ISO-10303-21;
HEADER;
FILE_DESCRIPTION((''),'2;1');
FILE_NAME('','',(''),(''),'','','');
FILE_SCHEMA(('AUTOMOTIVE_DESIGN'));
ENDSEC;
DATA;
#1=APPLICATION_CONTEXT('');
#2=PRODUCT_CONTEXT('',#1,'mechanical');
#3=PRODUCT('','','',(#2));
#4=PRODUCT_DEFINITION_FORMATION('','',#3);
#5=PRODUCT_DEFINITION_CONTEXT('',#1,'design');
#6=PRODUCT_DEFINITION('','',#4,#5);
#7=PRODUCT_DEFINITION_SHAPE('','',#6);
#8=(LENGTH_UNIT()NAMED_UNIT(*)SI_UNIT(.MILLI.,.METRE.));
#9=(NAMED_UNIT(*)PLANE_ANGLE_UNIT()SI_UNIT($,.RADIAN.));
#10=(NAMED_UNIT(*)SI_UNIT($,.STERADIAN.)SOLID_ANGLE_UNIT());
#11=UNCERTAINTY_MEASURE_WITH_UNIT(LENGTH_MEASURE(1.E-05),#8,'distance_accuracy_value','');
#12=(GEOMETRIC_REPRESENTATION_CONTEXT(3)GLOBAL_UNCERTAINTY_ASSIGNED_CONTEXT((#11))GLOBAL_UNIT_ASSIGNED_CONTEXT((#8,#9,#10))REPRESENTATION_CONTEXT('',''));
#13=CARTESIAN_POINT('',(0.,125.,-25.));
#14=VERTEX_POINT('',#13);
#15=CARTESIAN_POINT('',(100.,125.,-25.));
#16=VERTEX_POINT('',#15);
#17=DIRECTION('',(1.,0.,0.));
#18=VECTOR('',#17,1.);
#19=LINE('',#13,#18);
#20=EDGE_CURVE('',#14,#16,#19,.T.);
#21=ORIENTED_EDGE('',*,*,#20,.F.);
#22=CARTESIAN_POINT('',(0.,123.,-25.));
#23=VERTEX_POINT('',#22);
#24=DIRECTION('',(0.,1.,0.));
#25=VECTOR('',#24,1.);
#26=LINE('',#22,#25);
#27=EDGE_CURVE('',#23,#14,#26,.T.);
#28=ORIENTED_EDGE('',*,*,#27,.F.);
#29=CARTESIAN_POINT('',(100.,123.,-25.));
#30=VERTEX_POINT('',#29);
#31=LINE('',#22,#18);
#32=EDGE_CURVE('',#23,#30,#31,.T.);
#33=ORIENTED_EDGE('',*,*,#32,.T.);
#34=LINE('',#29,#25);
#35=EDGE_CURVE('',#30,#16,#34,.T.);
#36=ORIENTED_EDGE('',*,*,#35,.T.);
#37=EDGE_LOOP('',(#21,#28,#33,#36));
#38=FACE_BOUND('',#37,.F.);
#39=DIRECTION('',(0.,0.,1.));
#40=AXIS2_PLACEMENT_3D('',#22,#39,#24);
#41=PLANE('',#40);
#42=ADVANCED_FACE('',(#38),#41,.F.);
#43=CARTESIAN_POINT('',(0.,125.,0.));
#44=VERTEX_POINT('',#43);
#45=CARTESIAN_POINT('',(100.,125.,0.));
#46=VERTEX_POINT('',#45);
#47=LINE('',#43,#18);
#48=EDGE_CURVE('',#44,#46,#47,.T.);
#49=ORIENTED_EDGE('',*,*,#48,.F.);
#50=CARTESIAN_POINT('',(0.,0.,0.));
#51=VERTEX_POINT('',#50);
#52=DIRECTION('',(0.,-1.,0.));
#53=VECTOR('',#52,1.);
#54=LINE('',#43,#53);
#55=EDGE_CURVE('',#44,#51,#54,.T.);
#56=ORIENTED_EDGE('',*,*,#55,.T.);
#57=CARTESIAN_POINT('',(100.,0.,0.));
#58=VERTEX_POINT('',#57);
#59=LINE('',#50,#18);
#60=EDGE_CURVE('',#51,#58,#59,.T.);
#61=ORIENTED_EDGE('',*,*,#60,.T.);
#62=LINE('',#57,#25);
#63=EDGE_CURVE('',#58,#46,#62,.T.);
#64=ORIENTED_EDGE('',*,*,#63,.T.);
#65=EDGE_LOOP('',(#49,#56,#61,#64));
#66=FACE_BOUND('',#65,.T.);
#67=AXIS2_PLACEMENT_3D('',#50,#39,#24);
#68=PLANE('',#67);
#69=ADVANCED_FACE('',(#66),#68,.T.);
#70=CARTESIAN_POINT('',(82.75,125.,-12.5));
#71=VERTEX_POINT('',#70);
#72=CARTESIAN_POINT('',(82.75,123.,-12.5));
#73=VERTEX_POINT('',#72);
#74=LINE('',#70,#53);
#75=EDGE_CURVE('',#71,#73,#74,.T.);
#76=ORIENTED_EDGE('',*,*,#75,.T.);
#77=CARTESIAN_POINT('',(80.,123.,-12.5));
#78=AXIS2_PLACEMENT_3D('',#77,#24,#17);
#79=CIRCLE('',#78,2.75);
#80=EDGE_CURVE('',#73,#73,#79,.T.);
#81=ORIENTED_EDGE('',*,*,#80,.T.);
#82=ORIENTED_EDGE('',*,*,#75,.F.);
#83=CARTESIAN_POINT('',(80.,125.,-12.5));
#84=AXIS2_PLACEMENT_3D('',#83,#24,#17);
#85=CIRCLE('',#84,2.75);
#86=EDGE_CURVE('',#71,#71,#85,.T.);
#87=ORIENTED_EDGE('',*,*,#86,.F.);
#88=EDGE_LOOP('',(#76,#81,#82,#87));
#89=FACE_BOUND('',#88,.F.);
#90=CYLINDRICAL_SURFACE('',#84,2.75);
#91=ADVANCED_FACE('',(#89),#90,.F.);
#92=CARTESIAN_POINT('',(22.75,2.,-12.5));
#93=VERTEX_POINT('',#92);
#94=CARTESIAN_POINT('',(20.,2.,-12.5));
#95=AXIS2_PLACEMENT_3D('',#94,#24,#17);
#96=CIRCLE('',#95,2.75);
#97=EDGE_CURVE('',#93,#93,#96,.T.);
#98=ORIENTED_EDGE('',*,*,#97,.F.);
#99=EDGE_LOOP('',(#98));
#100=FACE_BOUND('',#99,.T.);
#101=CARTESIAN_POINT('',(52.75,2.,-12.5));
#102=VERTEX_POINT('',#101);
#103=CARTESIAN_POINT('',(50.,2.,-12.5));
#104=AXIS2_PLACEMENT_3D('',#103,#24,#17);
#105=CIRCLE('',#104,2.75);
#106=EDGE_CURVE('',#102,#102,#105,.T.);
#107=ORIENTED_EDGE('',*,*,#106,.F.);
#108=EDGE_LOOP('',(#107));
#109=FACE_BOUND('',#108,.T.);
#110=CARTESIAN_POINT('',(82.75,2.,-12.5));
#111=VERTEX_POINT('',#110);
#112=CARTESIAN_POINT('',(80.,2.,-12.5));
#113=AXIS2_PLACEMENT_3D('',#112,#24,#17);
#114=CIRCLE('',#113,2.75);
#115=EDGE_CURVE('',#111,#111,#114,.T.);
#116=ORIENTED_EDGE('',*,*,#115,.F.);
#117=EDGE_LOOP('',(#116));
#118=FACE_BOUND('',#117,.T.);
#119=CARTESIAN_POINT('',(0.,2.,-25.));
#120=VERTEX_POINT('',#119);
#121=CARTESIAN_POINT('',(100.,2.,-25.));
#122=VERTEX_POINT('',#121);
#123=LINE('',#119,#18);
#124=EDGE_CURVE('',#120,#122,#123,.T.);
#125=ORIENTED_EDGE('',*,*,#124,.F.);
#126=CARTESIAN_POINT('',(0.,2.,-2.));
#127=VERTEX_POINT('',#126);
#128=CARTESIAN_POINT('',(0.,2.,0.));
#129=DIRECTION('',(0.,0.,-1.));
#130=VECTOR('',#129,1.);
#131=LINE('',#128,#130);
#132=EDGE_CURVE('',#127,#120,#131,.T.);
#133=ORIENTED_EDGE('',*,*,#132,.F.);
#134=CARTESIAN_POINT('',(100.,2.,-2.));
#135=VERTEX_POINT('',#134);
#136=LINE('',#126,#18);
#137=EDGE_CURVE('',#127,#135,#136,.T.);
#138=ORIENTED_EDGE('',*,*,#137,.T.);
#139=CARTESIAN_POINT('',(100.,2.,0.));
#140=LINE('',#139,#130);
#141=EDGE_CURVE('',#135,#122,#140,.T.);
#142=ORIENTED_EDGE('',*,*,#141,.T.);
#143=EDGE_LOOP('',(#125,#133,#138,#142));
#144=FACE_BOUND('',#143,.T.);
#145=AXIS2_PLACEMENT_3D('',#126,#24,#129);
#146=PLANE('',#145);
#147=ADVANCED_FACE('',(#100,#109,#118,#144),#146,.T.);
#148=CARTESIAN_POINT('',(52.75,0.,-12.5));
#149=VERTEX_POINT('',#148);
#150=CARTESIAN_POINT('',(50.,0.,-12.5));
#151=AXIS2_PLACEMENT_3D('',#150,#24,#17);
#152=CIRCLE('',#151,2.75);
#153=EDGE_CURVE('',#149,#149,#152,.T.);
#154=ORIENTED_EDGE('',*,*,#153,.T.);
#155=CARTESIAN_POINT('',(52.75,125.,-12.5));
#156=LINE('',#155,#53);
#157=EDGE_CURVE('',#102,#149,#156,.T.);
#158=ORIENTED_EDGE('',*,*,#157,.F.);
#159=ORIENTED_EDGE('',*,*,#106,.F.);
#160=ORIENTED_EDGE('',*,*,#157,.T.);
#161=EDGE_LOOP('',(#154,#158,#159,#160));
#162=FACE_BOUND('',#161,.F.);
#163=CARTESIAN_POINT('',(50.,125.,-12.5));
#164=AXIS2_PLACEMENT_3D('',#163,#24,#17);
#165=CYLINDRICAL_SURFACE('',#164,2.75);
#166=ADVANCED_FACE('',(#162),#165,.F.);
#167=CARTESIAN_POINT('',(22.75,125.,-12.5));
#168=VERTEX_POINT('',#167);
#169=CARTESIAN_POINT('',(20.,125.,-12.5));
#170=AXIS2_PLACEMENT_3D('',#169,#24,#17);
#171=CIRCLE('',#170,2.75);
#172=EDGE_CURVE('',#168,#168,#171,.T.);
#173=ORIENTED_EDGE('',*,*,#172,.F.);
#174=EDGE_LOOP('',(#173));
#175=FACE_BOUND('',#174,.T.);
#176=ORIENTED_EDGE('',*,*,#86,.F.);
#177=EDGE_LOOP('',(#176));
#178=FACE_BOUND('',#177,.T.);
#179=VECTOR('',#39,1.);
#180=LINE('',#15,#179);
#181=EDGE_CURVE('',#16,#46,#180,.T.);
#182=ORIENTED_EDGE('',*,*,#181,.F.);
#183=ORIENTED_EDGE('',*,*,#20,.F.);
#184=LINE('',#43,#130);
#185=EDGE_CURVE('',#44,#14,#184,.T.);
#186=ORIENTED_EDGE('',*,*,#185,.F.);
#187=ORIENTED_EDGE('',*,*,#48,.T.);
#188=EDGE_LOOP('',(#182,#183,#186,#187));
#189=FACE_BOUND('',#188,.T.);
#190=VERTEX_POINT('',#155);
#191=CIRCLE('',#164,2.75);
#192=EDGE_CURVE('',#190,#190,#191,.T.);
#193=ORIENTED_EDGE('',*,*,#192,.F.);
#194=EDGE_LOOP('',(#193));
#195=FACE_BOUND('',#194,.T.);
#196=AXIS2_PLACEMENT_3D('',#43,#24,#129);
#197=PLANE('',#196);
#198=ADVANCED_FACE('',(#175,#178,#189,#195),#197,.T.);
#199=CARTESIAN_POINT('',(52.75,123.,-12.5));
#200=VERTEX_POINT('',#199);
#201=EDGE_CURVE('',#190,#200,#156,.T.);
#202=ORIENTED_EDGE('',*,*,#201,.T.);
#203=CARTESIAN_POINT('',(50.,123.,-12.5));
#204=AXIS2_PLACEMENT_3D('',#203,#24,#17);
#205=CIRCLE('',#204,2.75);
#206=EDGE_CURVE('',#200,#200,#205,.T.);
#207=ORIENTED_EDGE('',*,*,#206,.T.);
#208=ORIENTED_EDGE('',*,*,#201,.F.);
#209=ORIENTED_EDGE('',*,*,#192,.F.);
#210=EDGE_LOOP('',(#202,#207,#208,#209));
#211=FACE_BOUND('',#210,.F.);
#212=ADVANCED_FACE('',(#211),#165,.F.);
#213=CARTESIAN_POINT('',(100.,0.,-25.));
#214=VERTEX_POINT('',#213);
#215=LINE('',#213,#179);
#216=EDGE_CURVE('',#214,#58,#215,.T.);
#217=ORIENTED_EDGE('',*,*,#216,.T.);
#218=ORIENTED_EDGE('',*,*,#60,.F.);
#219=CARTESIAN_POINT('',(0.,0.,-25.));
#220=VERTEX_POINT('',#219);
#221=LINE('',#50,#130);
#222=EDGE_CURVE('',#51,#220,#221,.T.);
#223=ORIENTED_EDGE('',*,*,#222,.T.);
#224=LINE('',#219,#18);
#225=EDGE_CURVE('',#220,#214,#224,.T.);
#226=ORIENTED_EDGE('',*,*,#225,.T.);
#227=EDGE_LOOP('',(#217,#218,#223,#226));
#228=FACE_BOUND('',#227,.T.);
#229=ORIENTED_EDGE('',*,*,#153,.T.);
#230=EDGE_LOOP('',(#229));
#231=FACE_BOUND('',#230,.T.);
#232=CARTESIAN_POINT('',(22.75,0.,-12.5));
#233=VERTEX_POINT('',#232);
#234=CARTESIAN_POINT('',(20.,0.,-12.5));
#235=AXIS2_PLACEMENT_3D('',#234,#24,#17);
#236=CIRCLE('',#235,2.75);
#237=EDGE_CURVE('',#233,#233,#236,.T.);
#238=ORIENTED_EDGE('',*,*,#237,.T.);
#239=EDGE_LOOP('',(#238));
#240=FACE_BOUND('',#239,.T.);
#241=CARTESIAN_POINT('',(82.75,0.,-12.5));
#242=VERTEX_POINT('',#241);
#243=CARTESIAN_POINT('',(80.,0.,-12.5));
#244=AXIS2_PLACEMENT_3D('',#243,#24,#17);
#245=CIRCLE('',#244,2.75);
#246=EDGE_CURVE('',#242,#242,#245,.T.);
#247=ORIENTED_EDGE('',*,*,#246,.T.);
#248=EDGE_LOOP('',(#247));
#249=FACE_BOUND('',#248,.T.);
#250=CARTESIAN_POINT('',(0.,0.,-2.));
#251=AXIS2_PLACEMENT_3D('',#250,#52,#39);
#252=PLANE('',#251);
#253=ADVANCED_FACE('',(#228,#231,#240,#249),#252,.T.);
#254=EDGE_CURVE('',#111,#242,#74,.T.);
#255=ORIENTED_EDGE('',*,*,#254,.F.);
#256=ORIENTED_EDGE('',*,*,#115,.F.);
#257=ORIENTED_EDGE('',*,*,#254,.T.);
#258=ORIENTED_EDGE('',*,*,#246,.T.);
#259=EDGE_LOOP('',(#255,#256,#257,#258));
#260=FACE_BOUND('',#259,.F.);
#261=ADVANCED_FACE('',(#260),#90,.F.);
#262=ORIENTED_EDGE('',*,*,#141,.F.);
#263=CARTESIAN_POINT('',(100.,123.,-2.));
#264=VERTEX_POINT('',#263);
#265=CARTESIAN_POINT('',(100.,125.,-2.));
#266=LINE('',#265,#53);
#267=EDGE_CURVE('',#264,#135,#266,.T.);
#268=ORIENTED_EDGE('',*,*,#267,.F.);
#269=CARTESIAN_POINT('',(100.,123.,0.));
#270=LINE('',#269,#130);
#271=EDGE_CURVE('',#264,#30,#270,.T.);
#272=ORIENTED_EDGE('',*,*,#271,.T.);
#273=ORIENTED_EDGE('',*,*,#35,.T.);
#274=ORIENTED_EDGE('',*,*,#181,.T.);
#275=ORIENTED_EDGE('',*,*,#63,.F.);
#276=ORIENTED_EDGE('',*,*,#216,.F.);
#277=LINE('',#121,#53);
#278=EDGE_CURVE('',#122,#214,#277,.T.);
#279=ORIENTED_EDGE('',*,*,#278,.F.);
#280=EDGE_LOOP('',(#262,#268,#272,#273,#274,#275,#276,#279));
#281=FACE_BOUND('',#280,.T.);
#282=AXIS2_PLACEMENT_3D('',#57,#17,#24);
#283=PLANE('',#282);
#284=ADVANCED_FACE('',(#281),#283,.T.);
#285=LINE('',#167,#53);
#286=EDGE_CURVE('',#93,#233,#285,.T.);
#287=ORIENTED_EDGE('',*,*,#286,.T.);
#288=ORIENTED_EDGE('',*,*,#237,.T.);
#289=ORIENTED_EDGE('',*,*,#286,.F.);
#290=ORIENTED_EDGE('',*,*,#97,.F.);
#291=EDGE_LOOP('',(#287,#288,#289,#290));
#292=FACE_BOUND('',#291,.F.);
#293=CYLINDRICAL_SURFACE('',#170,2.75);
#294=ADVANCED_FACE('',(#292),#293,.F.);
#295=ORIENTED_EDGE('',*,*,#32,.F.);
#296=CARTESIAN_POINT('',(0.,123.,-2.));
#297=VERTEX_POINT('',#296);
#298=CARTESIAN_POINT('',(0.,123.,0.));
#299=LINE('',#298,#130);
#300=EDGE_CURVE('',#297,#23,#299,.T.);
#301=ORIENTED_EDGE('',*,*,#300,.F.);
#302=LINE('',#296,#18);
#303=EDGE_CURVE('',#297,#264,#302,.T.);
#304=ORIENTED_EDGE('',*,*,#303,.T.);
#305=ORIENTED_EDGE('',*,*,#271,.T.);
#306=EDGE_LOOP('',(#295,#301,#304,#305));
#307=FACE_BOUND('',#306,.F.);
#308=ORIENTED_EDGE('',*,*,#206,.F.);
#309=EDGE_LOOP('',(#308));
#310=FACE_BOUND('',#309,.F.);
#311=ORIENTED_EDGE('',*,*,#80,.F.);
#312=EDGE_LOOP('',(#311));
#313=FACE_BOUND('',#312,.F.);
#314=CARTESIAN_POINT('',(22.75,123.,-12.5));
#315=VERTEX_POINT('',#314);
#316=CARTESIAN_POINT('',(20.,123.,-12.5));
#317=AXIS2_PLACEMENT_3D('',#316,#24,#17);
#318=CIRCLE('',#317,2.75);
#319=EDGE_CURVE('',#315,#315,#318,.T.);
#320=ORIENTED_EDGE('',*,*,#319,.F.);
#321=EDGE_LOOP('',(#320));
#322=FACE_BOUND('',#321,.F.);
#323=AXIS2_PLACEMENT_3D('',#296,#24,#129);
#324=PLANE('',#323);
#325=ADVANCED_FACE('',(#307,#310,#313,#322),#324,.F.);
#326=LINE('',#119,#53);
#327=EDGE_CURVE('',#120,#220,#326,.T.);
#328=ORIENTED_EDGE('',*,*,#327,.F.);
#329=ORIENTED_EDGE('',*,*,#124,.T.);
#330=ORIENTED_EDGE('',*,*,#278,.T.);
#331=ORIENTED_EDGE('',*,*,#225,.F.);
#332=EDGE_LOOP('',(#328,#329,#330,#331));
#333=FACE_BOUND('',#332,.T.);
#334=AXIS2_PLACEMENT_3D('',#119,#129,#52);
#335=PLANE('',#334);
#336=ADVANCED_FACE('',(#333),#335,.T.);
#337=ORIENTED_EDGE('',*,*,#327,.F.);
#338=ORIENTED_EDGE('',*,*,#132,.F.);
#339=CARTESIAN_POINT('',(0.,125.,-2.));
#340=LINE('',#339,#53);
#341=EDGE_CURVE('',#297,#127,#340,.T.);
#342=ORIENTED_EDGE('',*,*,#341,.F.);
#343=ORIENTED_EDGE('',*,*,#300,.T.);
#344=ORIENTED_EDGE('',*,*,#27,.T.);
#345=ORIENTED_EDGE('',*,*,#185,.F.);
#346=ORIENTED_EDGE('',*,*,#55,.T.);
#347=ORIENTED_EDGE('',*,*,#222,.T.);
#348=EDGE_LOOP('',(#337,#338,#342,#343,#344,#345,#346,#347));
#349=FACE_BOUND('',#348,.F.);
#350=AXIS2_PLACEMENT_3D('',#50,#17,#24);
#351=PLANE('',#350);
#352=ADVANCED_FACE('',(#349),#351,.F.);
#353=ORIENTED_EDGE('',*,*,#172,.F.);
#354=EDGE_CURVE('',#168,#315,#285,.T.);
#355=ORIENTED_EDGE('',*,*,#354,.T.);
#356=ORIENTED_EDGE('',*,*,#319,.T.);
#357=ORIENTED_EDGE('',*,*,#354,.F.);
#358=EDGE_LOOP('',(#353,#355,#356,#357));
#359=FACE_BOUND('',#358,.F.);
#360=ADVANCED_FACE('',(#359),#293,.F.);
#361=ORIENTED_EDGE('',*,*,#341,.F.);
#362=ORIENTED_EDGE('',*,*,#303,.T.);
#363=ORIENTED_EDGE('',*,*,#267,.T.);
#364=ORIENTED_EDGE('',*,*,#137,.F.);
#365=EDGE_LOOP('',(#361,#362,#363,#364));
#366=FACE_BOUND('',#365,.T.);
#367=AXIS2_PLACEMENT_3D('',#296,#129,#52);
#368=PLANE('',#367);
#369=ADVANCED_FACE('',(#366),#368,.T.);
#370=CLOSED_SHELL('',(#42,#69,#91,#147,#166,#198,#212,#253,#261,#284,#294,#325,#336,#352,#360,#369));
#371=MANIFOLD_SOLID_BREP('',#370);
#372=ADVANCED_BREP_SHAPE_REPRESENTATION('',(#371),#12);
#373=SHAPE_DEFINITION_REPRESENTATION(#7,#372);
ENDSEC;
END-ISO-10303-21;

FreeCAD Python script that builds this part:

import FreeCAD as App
import Part
import Sketcher

V = App.Vector

doc = App.newDocument("Part")
body = doc.addObject("PartDesign::Body", "Body")

sketch1 = doc.addObject("Sketcher::SketchObject", "Sketch")
body.addObject(sketch1)
sketch1.AttachmentSupport = (doc.YZ_Plane, [""])
sketch1.MapMode = "FlatFace"
sketch1.addGeometry(Part.LineSegment(V(0, 0, 0), V(0, -25, 0)), False)
sketch1.addGeometry(Part.LineSegment(V(0, -25, 0), V(2, -25, 0)), False)
sketch1.addGeometry(Part.LineSegment(V(2, -25, 0), V(2, -2, 0)), False)
sketch1.addGeometry(Part.LineSegment(V(2, -2, 0), V(123, -2, 0)), False)
sketch1.addGeometry(Part.LineSegment(V(123, -2, 0), V(123, -25, 0)), False)
sketch1.addGeometry(Part.LineSegment(V(123, -25, 0), V(125, -25, 0)), False)
sketch1.addGeometry(Part.LineSegment(V(125, -25, 0), V(125, 0, 0)), False)
sketch1.addGeometry(Part.LineSegment(V(125, 0, 0), V(0, 0, 0)), False)
sketch1.addConstraint(Sketcher.Constraint("Coincident", 0, 2, 1, 1))
sketch1.addConstraint(Sketcher.Constraint("Coincident", 1, 2, 2, 1))
sketch1.addConstraint(Sketcher.Constraint("Coincident", 2, 2, 3, 1))
sketch1.addConstraint(Sketcher.Constraint("Coincident", 3, 2, 4, 1))
sketch1.addConstraint(Sketcher.Constraint("Coincident", 4, 2, 5, 1))
sketch1.addConstraint(Sketcher.Constraint("Coincident", 5, 2, 6, 1))
sketch1.addConstraint(Sketcher.Constraint("Coincident", 6, 2, 7, 1))
sketch1.addConstraint(Sketcher.Constraint("Coincident", 7, 2, 0, 1))
sketch1.addConstraint(Sketcher.Constraint("Vertical", 0))
sketch1.addConstraint(Sketcher.Constraint("Horizontal", 1))
sketch1.addConstraint(Sketcher.Constraint("Vertical", 2))
sketch1.addConstraint(Sketcher.Constraint("Horizontal", 3))
sketch1.addConstraint(Sketcher.Constraint("Vertical", 4))
sketch1.addConstraint(Sketcher.Constraint("Horizontal", 5))
sketch1.addConstraint(Sketcher.Constraint("Vertical", 6))
sketch1.addConstraint(Sketcher.Constraint("Horizontal", 7))
sketch1.addConstraint(Sketcher.Constraint("Coincident", 7, 2, -1, 1))
sketch1.addConstraint(Sketcher.Constraint("Horizontal", 1, 2, 4, 2))
sketch1.addConstraint(Sketcher.Constraint("Equal", 1, 5))
sketch1.addConstraint(Sketcher.Constraint("DistanceX", 1, 1, 1, 2, 2.0))
sketch1.addConstraint(Sketcher.Constraint("DistanceX", 7, 2, 7, 1, 125.0))
sketch1.addConstraint(Sketcher.Constraint("DistanceY", 0, 2, 0, 1, 25.0))
sketch1.addConstraint(Sketcher.Constraint("DistanceY", 2, 2, -1, 1, 2.0))
pad1 = doc.addObject("PartDesign::Pad", "Pad")
body.addObject(pad1)
pad1.Profile = sketch1
pad1.Length = 100

sketch2 = doc.addObject("Sketcher::SketchObject", "Sketch001")
body.addObject(sketch2)
sketch2.AttachmentSupport = (doc.XZ_Plane, [""])
sketch2.MapMode = "FlatFace"
sketch2.AttachmentOffset = App.Placement(V(0, 0, -125), App.Rotation())
sketch2.addGeometry(Part.Circle(V(20, -12.5, 0), V(0, 0, 1), 2.8), False)
sketch2.addGeometry(Part.Circle(V(50, -12.5, 0), V(0, 0, 1), 2.8), False)
sketch2.addGeometry(Part.Circle(V(80, -12.5, 0), V(0, 0, 1), 2.8), False)
sketch2.addConstraint(Sketcher.Constraint("Equal", 0, 1))
sketch2.addConstraint(Sketcher.Constraint("Equal", 1, 2))
sketch2.addConstraint(Sketcher.Constraint("Horizontal", 0, 3, 1, 3))
sketch2.addConstraint(Sketcher.Constraint("Horizontal", 1, 3, 2, 3))
sketch2.addConstraint(Sketcher.Constraint("Diameter", 0, 5.5))
sketch2.addConstraint(Sketcher.Constraint("DistanceX", -1, 1, 0, 3, 20.0))
sketch2.addConstraint(Sketcher.Constraint("DistanceX", -1, 1, 1, 3, 50.0))
sketch2.addConstraint(Sketcher.Constraint("DistanceY", 0, 3, -1, 1, 12.5))
sketch2.addConstraint(Sketcher.Constraint("DistanceX", -1, 1, 2, 3, 80.0))
pocket1 = doc.addObject("PartDesign::Pocket", "Pocket")
body.addObject(pocket1)
pocket1.Profile = sketch2
pocket1.Length = 125
pocket1.Reversed = True

doc.recompute()
